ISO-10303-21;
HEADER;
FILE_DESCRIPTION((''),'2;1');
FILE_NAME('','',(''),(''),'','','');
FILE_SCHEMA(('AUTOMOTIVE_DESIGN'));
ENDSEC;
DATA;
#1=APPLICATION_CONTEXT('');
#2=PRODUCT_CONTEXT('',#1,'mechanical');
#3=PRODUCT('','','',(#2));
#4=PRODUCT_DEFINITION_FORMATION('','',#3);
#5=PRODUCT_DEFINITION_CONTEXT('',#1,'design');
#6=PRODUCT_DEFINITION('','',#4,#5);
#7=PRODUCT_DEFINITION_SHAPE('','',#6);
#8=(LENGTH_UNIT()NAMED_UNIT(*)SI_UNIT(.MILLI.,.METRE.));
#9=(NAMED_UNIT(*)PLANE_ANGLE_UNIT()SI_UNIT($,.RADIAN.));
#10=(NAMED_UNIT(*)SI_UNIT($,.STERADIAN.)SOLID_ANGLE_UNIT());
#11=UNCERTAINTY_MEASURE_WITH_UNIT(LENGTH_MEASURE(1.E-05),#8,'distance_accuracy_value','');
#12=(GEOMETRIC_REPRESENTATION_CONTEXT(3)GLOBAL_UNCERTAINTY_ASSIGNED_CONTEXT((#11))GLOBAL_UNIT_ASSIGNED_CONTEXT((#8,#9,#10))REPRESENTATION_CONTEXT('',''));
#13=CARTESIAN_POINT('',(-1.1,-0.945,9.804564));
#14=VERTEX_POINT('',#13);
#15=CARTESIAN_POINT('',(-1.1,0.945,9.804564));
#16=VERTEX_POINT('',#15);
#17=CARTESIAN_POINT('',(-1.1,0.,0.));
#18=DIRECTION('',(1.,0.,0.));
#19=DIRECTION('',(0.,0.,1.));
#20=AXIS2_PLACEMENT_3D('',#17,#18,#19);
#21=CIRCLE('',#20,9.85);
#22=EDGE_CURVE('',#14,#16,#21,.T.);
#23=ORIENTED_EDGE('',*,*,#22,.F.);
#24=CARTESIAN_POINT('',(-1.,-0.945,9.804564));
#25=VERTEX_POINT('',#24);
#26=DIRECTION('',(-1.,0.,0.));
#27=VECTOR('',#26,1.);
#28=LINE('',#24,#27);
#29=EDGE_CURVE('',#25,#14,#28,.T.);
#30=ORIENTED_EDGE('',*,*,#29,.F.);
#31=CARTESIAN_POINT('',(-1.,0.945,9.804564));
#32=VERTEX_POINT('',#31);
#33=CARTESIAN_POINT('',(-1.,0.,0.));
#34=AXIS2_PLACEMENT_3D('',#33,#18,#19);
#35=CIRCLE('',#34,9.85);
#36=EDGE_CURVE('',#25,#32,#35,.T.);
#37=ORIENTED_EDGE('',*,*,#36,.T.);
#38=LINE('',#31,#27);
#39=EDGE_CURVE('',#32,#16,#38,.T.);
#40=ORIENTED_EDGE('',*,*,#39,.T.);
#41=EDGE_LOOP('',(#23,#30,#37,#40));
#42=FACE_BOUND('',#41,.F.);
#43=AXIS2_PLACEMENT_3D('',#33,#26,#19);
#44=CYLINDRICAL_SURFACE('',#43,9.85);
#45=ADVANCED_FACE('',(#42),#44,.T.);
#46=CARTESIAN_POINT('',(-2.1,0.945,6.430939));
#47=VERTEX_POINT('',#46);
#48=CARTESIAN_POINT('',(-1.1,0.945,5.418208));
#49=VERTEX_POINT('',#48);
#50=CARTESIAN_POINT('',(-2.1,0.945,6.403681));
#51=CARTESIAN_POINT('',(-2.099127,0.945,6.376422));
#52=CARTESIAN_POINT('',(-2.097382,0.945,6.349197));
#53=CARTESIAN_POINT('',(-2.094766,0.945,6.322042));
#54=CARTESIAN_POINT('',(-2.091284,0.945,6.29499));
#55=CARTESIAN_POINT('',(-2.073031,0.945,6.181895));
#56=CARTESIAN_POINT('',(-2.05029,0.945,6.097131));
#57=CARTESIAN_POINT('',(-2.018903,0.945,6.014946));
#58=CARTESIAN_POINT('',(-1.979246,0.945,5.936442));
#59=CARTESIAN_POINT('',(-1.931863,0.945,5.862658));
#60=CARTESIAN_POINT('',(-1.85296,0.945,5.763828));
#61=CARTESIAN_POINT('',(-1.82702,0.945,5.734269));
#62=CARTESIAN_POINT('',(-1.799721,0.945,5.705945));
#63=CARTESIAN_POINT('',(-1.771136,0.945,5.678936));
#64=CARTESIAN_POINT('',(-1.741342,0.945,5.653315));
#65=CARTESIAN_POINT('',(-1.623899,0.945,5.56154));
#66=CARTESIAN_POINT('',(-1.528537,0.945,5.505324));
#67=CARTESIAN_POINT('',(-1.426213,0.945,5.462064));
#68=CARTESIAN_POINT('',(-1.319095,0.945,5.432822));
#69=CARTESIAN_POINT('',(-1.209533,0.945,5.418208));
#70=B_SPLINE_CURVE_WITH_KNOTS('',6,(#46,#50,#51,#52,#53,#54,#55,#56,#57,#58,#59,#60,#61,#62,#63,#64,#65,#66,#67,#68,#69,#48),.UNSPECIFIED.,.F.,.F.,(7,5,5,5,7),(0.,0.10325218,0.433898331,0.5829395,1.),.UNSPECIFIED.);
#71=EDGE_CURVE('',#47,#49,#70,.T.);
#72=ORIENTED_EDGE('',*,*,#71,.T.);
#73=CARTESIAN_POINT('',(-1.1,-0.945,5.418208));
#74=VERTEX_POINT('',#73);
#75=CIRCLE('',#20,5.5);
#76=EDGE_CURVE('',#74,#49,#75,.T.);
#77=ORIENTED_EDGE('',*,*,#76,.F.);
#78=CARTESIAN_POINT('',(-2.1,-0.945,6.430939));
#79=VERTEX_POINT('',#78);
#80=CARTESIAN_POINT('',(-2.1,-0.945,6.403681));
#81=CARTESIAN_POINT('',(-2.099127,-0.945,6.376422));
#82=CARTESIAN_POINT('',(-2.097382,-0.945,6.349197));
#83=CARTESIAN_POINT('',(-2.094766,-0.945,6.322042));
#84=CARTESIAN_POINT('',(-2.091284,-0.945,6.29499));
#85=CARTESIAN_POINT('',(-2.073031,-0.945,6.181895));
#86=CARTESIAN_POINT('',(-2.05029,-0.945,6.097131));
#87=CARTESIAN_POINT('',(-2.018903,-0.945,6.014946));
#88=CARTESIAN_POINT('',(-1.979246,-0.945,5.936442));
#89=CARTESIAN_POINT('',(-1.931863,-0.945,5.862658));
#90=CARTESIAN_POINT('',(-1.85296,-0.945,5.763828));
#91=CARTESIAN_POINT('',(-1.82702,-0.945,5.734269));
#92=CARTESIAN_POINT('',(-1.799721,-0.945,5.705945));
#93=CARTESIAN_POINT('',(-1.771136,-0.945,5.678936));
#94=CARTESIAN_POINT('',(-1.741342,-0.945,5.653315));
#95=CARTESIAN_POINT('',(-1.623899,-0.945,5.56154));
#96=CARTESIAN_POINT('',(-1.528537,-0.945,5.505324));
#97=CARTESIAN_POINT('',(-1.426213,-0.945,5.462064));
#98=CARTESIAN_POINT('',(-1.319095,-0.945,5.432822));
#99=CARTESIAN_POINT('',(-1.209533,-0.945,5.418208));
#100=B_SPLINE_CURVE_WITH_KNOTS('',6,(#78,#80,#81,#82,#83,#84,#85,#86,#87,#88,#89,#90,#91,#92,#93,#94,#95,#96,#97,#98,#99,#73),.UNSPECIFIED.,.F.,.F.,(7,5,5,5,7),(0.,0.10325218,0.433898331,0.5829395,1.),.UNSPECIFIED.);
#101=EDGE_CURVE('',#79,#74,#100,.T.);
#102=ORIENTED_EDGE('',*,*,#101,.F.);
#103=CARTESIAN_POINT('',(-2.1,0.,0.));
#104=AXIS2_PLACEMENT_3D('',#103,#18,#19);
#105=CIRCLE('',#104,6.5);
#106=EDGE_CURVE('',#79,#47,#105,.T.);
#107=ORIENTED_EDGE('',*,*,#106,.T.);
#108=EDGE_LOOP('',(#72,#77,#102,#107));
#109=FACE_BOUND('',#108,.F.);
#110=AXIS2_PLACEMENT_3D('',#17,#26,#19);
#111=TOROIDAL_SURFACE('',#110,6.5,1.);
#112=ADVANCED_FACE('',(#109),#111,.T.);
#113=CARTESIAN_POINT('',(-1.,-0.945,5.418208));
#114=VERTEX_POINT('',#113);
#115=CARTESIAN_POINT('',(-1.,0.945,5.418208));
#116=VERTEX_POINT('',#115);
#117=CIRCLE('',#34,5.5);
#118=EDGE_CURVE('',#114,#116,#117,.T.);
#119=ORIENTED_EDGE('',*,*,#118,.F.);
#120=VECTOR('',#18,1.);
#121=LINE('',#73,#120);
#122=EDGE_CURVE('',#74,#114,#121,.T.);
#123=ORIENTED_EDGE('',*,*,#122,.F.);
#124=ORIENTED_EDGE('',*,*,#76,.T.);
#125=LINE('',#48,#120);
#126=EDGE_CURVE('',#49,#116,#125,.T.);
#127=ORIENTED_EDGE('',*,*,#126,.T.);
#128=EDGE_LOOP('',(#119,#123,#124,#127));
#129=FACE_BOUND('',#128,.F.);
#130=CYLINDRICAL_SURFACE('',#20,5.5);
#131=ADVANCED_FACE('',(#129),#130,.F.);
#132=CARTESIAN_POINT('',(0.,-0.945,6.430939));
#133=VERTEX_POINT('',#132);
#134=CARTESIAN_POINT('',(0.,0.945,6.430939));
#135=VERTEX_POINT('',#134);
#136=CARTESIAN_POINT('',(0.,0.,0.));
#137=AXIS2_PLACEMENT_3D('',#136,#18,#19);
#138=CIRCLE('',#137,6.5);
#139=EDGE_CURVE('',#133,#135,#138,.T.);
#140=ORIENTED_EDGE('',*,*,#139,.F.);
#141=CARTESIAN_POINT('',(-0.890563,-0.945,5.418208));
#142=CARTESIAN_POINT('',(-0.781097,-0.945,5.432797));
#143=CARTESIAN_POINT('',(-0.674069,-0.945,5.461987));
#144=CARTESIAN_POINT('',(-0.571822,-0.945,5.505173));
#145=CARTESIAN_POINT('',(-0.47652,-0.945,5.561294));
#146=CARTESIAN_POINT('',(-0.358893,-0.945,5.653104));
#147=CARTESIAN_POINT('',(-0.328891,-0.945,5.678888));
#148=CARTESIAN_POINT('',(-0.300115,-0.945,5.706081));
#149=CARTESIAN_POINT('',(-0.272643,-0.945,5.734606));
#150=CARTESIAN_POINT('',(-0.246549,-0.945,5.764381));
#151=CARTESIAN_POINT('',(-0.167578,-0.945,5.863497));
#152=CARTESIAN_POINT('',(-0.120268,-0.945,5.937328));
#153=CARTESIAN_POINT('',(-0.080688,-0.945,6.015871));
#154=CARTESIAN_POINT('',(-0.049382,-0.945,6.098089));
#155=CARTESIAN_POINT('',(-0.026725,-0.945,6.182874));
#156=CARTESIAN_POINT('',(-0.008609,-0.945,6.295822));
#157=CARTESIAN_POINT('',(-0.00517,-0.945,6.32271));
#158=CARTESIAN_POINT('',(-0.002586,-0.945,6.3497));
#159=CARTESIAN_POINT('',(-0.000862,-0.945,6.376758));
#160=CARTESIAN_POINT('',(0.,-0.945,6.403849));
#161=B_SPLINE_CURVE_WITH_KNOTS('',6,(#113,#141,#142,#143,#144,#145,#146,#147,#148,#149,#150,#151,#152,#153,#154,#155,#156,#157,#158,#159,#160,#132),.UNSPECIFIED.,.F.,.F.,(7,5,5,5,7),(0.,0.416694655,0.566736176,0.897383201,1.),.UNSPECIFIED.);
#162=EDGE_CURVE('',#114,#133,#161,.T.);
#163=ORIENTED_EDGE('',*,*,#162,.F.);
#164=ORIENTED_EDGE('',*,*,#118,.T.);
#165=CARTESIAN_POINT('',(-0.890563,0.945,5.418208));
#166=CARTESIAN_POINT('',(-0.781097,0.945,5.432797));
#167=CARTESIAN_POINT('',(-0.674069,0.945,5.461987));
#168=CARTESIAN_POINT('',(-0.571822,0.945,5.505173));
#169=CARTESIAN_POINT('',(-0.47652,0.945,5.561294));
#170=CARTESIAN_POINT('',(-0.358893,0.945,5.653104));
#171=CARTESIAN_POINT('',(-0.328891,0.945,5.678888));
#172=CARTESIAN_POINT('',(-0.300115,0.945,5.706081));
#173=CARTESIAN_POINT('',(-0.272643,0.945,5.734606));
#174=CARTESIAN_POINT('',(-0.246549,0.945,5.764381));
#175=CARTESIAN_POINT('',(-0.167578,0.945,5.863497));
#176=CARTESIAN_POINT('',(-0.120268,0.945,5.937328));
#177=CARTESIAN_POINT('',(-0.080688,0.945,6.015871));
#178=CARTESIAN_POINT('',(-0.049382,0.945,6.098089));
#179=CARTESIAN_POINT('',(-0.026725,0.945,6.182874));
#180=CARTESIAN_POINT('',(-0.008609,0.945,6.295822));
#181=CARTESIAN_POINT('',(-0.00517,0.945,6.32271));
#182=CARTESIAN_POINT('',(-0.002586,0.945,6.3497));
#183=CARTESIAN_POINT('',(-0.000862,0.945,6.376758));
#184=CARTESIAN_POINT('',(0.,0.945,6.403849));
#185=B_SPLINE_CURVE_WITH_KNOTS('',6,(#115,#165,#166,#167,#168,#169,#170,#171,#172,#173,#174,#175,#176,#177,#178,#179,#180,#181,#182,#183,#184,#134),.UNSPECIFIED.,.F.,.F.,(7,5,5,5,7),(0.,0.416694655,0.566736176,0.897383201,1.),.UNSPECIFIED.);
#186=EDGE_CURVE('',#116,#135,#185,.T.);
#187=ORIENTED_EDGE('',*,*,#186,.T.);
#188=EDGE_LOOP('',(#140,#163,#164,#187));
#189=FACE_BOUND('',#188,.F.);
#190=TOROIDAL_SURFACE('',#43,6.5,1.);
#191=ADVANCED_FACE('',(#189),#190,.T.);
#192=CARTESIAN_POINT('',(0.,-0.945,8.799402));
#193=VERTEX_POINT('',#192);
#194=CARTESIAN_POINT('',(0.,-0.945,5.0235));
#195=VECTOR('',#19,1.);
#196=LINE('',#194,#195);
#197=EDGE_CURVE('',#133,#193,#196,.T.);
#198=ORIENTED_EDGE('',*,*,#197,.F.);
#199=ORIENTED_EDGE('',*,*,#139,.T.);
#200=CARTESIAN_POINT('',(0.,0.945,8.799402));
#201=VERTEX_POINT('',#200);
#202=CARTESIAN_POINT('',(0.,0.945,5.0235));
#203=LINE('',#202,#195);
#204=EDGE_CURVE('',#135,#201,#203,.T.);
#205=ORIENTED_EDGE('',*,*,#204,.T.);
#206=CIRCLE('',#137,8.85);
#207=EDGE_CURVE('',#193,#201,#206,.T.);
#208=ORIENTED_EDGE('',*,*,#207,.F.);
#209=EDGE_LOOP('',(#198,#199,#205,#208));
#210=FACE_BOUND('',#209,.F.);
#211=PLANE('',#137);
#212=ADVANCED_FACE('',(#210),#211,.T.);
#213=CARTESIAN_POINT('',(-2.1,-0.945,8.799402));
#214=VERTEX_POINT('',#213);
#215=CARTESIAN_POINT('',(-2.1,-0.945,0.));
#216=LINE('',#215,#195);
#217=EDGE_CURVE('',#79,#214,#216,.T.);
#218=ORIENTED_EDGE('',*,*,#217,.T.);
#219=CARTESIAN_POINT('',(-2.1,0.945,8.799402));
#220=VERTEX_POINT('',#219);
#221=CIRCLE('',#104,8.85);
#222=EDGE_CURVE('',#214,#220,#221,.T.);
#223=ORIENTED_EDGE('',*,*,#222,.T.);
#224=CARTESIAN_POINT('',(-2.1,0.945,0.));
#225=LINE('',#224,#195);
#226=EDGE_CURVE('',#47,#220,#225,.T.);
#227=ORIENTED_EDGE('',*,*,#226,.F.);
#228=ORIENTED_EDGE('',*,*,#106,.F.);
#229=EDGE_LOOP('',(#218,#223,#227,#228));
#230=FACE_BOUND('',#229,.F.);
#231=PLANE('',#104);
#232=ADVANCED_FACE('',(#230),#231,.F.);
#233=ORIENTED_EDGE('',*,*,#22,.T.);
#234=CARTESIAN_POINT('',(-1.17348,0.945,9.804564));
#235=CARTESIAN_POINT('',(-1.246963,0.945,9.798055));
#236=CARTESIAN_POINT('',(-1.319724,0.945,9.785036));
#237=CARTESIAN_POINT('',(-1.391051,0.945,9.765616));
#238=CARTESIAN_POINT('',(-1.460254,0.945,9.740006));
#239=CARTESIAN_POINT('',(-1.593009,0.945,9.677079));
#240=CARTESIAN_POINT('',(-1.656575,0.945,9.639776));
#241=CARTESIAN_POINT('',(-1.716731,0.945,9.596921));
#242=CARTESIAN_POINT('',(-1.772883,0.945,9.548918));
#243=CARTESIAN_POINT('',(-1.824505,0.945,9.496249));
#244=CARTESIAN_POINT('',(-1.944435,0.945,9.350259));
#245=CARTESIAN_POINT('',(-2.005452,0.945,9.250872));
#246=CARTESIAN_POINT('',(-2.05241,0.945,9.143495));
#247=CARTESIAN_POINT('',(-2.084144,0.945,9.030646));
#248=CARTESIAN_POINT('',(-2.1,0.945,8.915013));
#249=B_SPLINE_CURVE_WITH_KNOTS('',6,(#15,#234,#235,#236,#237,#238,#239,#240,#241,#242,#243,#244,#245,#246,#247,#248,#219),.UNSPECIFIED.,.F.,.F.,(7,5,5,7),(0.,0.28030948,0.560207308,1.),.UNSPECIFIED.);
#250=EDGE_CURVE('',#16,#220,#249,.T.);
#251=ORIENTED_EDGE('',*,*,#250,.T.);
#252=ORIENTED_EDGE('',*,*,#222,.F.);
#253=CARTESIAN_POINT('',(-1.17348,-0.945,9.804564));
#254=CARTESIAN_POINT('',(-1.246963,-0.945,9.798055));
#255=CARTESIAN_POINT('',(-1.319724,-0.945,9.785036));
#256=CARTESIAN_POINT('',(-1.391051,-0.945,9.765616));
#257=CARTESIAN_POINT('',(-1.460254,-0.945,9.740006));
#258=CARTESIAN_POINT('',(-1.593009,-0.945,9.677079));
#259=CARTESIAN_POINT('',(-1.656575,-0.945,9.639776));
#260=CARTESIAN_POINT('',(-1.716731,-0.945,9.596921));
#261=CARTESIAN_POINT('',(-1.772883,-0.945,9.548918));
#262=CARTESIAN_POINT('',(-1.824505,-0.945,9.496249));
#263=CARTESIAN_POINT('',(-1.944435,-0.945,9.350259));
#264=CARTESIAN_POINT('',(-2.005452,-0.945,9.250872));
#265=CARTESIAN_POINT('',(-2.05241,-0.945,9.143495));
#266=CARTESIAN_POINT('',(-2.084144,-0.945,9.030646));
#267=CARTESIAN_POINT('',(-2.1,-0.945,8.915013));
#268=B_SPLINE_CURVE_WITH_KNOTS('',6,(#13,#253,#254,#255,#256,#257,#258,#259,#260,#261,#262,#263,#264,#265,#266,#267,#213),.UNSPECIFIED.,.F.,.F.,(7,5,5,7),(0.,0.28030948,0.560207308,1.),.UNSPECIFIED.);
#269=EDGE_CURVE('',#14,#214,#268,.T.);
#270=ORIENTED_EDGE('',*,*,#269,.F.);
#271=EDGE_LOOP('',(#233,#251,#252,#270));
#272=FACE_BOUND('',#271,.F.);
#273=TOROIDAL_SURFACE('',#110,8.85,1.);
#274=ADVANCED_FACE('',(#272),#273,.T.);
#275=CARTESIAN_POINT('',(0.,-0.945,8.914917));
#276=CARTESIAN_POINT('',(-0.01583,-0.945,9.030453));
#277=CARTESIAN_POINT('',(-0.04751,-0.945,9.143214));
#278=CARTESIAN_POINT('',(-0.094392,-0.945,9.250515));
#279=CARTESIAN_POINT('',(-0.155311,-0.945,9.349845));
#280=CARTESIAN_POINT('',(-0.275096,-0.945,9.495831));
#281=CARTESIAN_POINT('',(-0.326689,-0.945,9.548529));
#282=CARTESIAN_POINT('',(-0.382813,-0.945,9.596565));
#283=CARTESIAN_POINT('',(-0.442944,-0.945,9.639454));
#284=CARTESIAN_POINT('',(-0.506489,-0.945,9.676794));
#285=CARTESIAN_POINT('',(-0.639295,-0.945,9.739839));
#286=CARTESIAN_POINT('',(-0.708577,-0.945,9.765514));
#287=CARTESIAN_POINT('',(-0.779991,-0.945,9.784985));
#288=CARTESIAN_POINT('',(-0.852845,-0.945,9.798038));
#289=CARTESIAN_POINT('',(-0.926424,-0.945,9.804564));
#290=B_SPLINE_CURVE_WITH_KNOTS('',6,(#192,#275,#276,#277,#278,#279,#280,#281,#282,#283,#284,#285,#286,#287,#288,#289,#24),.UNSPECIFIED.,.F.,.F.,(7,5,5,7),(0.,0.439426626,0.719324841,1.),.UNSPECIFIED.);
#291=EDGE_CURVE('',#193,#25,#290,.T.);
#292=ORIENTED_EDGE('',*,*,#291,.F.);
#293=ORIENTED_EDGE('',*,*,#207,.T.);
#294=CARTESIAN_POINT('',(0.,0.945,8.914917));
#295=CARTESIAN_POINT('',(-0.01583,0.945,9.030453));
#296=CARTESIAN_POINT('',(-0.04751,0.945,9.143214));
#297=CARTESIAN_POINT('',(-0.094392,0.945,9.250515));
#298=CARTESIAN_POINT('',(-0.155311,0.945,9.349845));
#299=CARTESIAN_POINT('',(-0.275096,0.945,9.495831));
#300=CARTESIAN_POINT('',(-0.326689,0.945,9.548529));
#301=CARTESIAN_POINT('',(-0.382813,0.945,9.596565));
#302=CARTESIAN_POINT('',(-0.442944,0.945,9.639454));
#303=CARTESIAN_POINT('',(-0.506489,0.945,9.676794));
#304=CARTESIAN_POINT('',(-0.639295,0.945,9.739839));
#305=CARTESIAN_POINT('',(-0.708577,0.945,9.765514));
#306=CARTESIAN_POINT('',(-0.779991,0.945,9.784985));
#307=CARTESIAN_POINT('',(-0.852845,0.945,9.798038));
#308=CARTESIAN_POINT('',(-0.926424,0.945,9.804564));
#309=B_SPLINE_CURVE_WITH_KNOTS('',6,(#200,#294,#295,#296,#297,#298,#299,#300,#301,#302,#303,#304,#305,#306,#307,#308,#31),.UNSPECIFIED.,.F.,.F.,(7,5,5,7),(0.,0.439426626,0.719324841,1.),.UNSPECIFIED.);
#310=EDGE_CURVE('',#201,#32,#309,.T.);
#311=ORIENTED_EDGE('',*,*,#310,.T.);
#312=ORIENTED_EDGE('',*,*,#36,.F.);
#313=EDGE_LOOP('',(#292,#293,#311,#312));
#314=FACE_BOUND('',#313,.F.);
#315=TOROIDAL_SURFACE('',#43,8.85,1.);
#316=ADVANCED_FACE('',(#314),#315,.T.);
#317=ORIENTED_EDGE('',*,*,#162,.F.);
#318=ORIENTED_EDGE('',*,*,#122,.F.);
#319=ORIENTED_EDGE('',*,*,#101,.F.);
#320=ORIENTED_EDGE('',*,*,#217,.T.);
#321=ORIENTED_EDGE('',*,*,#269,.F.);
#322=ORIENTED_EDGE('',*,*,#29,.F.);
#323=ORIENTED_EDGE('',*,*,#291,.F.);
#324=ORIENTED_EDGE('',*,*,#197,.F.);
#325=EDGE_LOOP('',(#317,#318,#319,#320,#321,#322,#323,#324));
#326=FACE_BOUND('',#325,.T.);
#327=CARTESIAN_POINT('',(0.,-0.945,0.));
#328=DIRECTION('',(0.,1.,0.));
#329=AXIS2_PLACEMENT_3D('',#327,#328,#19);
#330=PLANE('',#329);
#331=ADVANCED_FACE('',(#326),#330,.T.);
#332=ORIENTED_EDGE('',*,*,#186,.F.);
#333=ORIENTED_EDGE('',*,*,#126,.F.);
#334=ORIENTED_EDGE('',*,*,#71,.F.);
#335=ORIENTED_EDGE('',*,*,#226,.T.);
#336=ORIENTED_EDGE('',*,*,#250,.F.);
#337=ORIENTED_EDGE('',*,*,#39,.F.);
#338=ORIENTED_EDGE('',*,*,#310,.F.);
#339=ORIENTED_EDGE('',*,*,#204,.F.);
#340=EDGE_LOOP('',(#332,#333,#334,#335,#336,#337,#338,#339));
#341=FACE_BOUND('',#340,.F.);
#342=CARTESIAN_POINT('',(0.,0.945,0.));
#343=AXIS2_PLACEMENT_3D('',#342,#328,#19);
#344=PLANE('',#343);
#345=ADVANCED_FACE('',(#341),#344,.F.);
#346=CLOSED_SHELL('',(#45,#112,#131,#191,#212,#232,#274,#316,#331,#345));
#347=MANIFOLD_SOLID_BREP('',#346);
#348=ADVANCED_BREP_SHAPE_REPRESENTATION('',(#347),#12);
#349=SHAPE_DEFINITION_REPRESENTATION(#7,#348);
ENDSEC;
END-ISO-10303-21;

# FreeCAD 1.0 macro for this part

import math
import FreeCAD as App
import Part
import Sketcher


def add_polygon(sketch, points):
    """Adds a closed chain of lines whose ends are joined by coincident constraints."""
    first, n = sketch.GeometryCount, len(points)
    for a, b in zip(points, points[1:] + points[:1]):
        sketch.addGeometry(Part.LineSegment(App.Vector(*a, 0), App.Vector(*b, 0)), False)
    for i in range(n):
        sketch.addConstraint(Sketcher.Constraint("Coincident", first + i, 2, first + (i + 1) % n, 1))

doc = App.newDocument("Part")
body = doc.addObject("PartDesign::Body", "Body")

# Sketch on XY plane
sketch1 = body.newObject("Sketcher::SketchObject", "Sketch")
sketch1.AttachmentSupport = (doc.getObject("XY_Plane"), [""])
sketch1.MapMode = "FlatFace"
sketch1.addGeometry(Part.LineSegment(App.Vector(0, 6.5, 0), App.Vector(0, 8.85, 0)), False)
sketch1.addGeometry(Part.ArcOfCircle(Part.Circle(App.Vector(-1, 8.85, 0), App.Vector(0, 0, 1), 1), math.radians(0), math.radians(90)), False)
sketch1.addGeometry(Part.LineSegment(App.Vector(-1, 9.85, 0), App.Vector(-1.1, 9.85, 0)), False)
sketch1.addGeometry(Part.ArcOfCircle(Part.Circle(App.Vector(-1.1, 8.85, 0), App.Vector(0, 0, 1), 1), math.radians(90), math.radians(180)), False)
sketch1.addGeometry(Part.LineSegment(App.Vector(-2.1, 8.85, 0), App.Vector(-2.1, 6.5, 0)), False)
sketch1.addGeometry(Part.ArcOfCircle(Part.Circle(App.Vector(-1.1, 6.5, 0), App.Vector(0, 0, 1), 1), math.radians(-180), math.radians(-90)), False)
sketch1.addGeometry(Part.LineSegment(App.Vector(-1.1, 5.5, 0), App.Vector(-1, 5.5, 0)), False)
sketch1.addGeometry(Part.ArcOfCircle(Part.Circle(App.Vector(-1, 6.5, 0), App.Vector(0, 0, 1), 1), math.radians(-90), math.radians(0)), False)
sketch1.addConstraint(Sketcher.Constraint("Tangent", 0, 2, 1, 1))
sketch1.addConstraint(Sketcher.Constraint("Tangent", 1, 2, 2, 1))
sketch1.addConstraint(Sketcher.Constraint("Tangent", 2, 2, 3, 1))
sketch1.addConstraint(Sketcher.Constraint("Tangent", 3, 2, 4, 1))
sketch1.addConstraint(Sketcher.Constraint("Tangent", 4, 2, 5, 1))
sketch1.addConstraint(Sketcher.Constraint("Tangent", 5, 2, 6, 1))
sketch1.addConstraint(Sketcher.Constraint("Tangent", 6, 2, 7, 1))
sketch1.addConstraint(Sketcher.Constraint("Tangent", 7, 2, 0, 1))
sketch1.addConstraint(Sketcher.Constraint("Vertical", 0))
sketch1.addConstraint(Sketcher.Constraint("Horizontal", 2))
sketch1.addConstraint(Sketcher.Constraint("Vertical", 4))
sketch1.addConstraint(Sketcher.Constraint("Horizontal", 6))
sketch1.addConstraint(Sketcher.Constraint("Equal", 1, 3))
sketch1.addConstraint(Sketcher.Constraint("Equal", 3, 5))
sketch1.addConstraint(Sketcher.Constraint("Equal", 5, 7))
sketch1.addConstraint(Sketcher.Constraint("PointOnObject", 0, 2, -2))
sketch1.addConstraint(Sketcher.Constraint("Radius", 1, 1.0))
sketch1.addConstraint(Sketcher.Constraint("DistanceX", 2, 2, 2, 1, 0.1))
sketch1.addConstraint(Sketcher.Constraint("DistanceY", 0, 1, 0, 2, 2.35))
sketch1.addConstraint(Sketcher.Constraint("DistanceY", -1, 1, 5, 3, 6.5))
revolution = body.newObject("PartDesign::Revolution", "Revolution")
revolution.Profile = sketch1
revolution.ReferenceAxis = (sketch1, ["H_Axis"])
revolution.Angle = 360

# Sketch on YZ plane
sketch2 = body.newObject("Sketcher::SketchObject", "Sketch001")
sketch2.AttachmentSupport = (doc.getObject("YZ_Plane"), [""])
sketch2.MapMode = "FlatFace"
add_polygon(sketch2, [(0.9, 10), (0.9, 0), (-0.9, 0), (-0.9, 10)])  # lines 0-3
sketch2.addConstraint(Sketcher.Constraint("Vertical", 0))
sketch2.addConstraint(Sketcher.Constraint("Horizontal", 1))
sketch2.addConstraint(Sketcher.Constraint("Vertical", 2))
sketch2.addConstraint(Sketcher.Constraint("Horizontal", 3))
sketch2.addConstraint(Sketcher.Constraint("Symmetric", 0, 2, 1, 2, -1, 1))
sketch2.addConstraint(Sketcher.Constraint("DistanceX", 1, 2, 1, 1, 1.89))
sketch2.addConstraint(Sketcher.Constraint("DistanceY", 0, 2, 0, 1, 10.047))
pocket1 = body.newObject("PartDesign::Pocket", "Pocket")
pocket1.Profile = sketch2
pocket1.Type = "ThroughAll"

doc.recompute()
